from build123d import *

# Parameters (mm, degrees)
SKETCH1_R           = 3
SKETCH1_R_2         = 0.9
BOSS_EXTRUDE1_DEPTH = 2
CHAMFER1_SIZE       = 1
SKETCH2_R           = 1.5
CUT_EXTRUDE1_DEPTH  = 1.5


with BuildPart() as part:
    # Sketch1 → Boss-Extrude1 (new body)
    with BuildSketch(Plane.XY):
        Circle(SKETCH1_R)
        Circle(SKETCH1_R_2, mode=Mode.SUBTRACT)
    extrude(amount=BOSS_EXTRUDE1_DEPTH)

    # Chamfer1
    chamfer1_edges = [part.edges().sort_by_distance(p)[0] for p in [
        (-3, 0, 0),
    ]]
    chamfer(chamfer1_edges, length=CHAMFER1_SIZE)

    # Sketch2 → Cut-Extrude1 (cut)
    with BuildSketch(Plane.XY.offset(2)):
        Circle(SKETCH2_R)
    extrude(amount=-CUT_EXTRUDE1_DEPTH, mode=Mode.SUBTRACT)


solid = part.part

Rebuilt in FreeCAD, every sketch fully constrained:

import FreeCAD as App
import Part
import Sketcher

V = App.Vector


def edges_at(feature, points):
    """Names of the edges that pass closest to the given points."""
    edges = feature.Shape.Edges
    near = lambda p: min(range(len(edges)), key=lambda i: edges[i].distToShape(Part.Vertex(*p))[0])
    return sorted({f"Edge{near(p) + 1}" for p in points})

doc = App.newDocument("Part")
body = doc.addObject("PartDesign::Body", "Body")

# Sketch on XY plane
sketch1 = doc.addObject("Sketcher::SketchObject", "Sketch")
body.addObject(sketch1)
sketch1.AttachmentSupport = (doc.XY_Plane, [""])
sketch1.MapMode = "FlatFace"
sketch1.addGeometry(Part.Circle(V(0, 0, 0), V(0, 0, 1), 3), False)
sketch1.addGeometry(Part.Circle(V(0, 0, 0), V(0, 0, 1), 0.9), False)
sketch1.addConstraint(Sketcher.Constraint("Coincident", 0, 3, -1, 1))
sketch1.addConstraint(Sketcher.Constraint("Coincident", 1, 3, -1, 1))
sketch1.addConstraint(Sketcher.Constraint("Diameter", 0, 6.0))
sketch1.addConstraint(Sketcher.Constraint("Diameter", 1, 1.8))
pad1 = doc.addObject("PartDesign::Pad", "Pad")
body.addObject(pad1)
pad1.Profile = sketch1
pad1.Length = 2
doc.recompute()

chamfer = doc.addObject("PartDesign::Chamfer", "Chamfer")
body.addObject(chamfer)
chamfer.Base = (pad1, edges_at(pad1, [(-3, 0, 0)]))
chamfer.Size = 1

# Sketch on XY plane
sketch2 = doc.addObject("Sketcher::SketchObject", "Sketch001")
body.addObject(sketch2)
sketch2.AttachmentSupport = (doc.XY_Plane, [""])
sketch2.MapMode = "FlatFace"
sketch2.AttachmentOffset = App.Placement(V(0, 0, 2), App.Rotation())
sketch2.addGeometry(Part.Circle(V(0, 0, 0), V(0, 0, 1), 1.5), False)
sketch2.addConstraint(Sketcher.Constraint("Coincident", 0, 3, -1, 1))
sketch2.addConstraint(Sketcher.Constraint("Diameter", 0, 3.0))
pocket1 = doc.addObject("PartDesign::Pocket", "Pocket")
body.addObject(pocket1)
pocket1.Profile = sketch2
pocket1.Length = 1.5

doc.recompute()
